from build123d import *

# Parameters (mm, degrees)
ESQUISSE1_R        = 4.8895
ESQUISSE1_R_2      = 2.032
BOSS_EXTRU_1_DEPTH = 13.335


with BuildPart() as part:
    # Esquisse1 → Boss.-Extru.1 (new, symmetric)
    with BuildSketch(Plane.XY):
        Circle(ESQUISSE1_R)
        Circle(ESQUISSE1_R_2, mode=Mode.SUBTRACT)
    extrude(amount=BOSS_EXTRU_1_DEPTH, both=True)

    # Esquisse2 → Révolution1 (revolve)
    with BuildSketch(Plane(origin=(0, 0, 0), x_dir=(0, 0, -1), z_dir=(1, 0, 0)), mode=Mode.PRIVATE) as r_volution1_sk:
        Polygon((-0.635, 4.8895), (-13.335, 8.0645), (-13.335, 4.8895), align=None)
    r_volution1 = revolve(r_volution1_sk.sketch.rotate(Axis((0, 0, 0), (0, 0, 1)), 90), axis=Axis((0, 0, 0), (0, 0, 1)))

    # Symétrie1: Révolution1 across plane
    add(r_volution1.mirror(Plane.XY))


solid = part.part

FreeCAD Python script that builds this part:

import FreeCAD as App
import Part
import Sketcher

V = App.Vector
Q = App.Units.Quantity


def add_polygon(sketch, points):
    """Adds a closed chain of lines whose ends are joined by coincident constraints."""
    first, n = sketch.GeometryCount, len(points)
    for a, b in zip(points, points[1:] + points[:1]):
        sketch.addGeometry(Part.LineSegment(App.Vector(*a, 0), App.Vector(*b, 0)), False)
    for i in range(n):
        sketch.addConstraint(Sketcher.Constraint("Coincident", first + i, 2, first + (i + 1) % n, 1))

doc = App.newDocument("Part")
body = doc.addObject("PartDesign::Body", "Body")

sketch1 = body.newObject("Sketcher::SketchObject", "Sketch")
sketch1.AttachmentSupport = (doc.getObject("XY_Plane"), [""])
sketch1.MapMode = "FlatFace"
sketch1.addGeometry(Part.Circle(V(0, 0, 0), V(0, 0, 1), 4.8895), False)
sketch1.addGeometry(Part.Circle(V(0, 0, 0), V(0, 0, 1), 2.032), False)
sketch1.addConstraint(Sketcher.Constraint("Coincident", 0, 3, -1, 1))
sketch1.addConstraint(Sketcher.Constraint("Coincident", 1, 3, -1, 1))
sketch1.addConstraint(Sketcher.Constraint("Diameter", 1, Q("0.16 in")))
sketch1.addConstraint(Sketcher.Constraint("Diameter", 0, Q("0.385 in")))
pad1 = body.newObject("PartDesign::Pad", "Pad")
pad1.Profile = sketch1
pad1.Length = Q("1.05 in")
pad1.Midplane = True

sketch2 = body.newObject("Sketcher::SketchObject", "Sketch001")
sketch2.AttachmentSupport = (doc.getObject("YZ_Plane"), [""])
sketch2.MapMode = "FlatFace"
add_polygon(sketch2, [(4.8895, 0.635), (8.0645, 13.335), (4.8895, 13.335)])
sketch2.addConstraint(Sketcher.Constraint("Horizontal", 1))
sketch2.addConstraint(Sketcher.Constraint("Vertical", 2))
sketch2.addConstraint(Sketcher.Constraint("DistanceY", 2, 2, 2, 1, Q("0.5 in")))
sketch2.addConstraint(Sketcher.Constraint("DistanceX", 1, 2, 1, 1, Q("0.125 in")))
sketch2.addConstraint(Sketcher.Constraint("DistanceY", -1, 1, 0, 2, Q("0.525 in")))
sketch2.addConstraint(Sketcher.Constraint("DistanceX", -1, 1, 0, 2, Q("0.3175 in")))
revolution = body.newObject("PartDesign::Revolution", "Revolution")
revolution.Profile = sketch2
revolution.ReferenceAxis = (sketch2, ["V_Axis"])
revolution.Angle = 360
doc.recompute()

mirrored = body.newObject("PartDesign::Mirrored", "Mirrored")
mirrored.Originals = [revolution]
mirrored.MirrorPlane = (doc.getObject("XY_Plane"), [""])
body.Tip = mirrored

doc.recompute()
